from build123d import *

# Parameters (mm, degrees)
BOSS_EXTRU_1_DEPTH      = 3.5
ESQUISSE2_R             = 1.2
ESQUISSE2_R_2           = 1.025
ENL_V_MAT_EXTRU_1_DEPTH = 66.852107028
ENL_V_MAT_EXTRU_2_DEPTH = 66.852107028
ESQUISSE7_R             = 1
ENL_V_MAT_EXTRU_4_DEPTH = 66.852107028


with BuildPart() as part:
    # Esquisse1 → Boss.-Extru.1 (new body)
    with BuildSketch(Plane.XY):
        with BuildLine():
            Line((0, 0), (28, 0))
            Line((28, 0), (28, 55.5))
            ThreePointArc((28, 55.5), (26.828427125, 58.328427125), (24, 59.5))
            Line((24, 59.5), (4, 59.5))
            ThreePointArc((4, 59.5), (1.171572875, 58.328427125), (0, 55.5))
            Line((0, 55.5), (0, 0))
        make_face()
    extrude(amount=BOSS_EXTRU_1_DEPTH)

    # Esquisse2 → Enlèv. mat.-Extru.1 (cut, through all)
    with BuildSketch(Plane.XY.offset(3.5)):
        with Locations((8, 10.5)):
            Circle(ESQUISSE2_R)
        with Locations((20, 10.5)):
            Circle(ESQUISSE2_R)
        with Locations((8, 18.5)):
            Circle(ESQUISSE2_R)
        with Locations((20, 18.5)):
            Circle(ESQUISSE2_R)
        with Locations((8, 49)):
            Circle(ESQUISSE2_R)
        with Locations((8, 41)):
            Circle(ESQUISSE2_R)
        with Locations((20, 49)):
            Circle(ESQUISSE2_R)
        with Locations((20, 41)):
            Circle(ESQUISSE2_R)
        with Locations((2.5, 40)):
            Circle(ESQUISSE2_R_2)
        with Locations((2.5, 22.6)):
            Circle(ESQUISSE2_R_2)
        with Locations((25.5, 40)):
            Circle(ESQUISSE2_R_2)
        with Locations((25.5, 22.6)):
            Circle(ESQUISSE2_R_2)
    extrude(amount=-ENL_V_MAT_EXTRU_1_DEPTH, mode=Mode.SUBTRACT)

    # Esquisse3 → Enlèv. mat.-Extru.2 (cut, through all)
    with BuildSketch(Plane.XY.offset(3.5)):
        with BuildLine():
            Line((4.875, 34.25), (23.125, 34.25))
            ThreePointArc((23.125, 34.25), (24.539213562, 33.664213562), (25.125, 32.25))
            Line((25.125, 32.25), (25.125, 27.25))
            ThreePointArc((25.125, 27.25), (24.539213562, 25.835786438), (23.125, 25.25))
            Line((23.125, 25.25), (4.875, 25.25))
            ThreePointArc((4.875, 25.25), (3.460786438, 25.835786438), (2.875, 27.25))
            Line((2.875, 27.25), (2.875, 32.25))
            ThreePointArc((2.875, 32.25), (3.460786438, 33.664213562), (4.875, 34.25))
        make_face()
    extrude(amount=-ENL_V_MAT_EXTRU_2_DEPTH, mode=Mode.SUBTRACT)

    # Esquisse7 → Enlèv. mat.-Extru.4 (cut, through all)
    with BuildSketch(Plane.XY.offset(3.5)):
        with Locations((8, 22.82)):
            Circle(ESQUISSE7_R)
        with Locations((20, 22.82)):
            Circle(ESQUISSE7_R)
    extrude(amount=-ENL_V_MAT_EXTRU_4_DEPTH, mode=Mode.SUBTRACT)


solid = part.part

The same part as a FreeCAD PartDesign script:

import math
import FreeCAD as App
import Part
import Sketcher

doc = App.newDocument("Part")
params = doc.addObject("Spreadsheet::Sheet", "Params")
for row, (alias, value) in enumerate([
    ("sketch1_radius", "4 mm"),
    ("sketch1_width", "28 mm"),
    ("sketch1_height", "55.5 mm"),
    ("pad1_length", "3.5 mm"),
    ("sketch2_diameter", "2.4 mm"),
    ("sketch2_diameter2", "2.05 mm"),
    ("sketch3_radius", "2 mm"),
    ("sketch3_height", "5 mm"),
    ("sketch3_width", "18.25 mm"),
    ("sketch4_diameter", "2 mm"),
], start=1):
    params.set(f"A{row}", alias)
    params.set(f"B{row}", "=" + value)
    params.setAlias(f"B{row}", alias)

body = doc.addObject("PartDesign::Body", "Body")

sketch1 = body.newObject("Sketcher::SketchObject", "Sketch")
sketch1.AttachmentSupport = (doc.getObject("XY_Plane"), [""])
sketch1.MapMode = "FlatFace"
sketch1.addGeometry(Part.LineSegment(App.Vector(0, 0, 0), App.Vector(28, 0, 0)), False)
sketch1.addGeometry(Part.LineSegment(App.Vector(28, 0, 0), App.Vector(28, 55.5, 0)), False)
sketch1.addGeometry(Part.ArcOfCircle(Part.Circle(App.Vector(24, 55.5, 0), App.Vector(0, 0, 1), 4), math.radians(0), math.radians(90)), False)
sketch1.addGeometry(Part.LineSegment(App.Vector(24, 59.5, 0), App.Vector(4, 59.5, 0)), False)
sketch1.addGeometry(Part.ArcOfCircle(Part.Circle(App.Vector(4, 55.5, 0), App.Vector(0, 0, 1), 4), math.radians(90), math.radians(180)), False)
sketch1.addGeometry(Part.LineSegment(App.Vector(0, 55.5, 0), App.Vector(0, 0, 0)), False)
sketch1.addConstraint(Sketcher.Constraint("Coincident", 0, 2, 1, 1))
sketch1.addConstraint(Sketcher.Constraint("Tangent", 1, 2, 2, 1))
sketch1.addConstraint(Sketcher.Constraint("Tangent", 2, 2, 3, 1))
sketch1.addConstraint(Sketcher.Constraint("Tangent", 3, 2, 4, 1))
sketch1.addConstraint(Sketcher.Constraint("Tangent", 4, 2, 5, 1))
sketch1.addConstraint(Sketcher.Constraint("Coincident", 5, 2, 0, 1))
sketch1.addConstraint(Sketcher.Constraint("Horizontal", 0))
sketch1.addConstraint(Sketcher.Constraint("Vertical", 1))
sketch1.addConstraint(Sketcher.Constraint("Horizontal", 3))
sketch1.addConstraint(Sketcher.Constraint("Vertical", 5))
sketch1.addConstraint(Sketcher.Constraint("Coincident", 5, 2, -1, 1))
sketch1.addConstraint(Sketcher.Constraint("Equal", 2, 4))
sketch1.addConstraint(Sketcher.Constraint("Radius", 2, 4.0))
sketch1.addConstraint(Sketcher.Constraint("DistanceX", 0, 1, 0, 2, 28.0))
sketch1.addConstraint(Sketcher.Constraint("DistanceY", 1, 1, 1, 2, 55.5))
sketch1.setExpression("Constraints[12]", "Params.sketch1_radius")
sketch1.setExpression("Constraints[13]", "Params.sketch1_width")
sketch1.setExpression("Constraints[14]", "Params.sketch1_height")
pad1 = body.newObject("PartDesign::Pad", "Pad")
pad1.Profile = sketch1
pad1.setExpression("Length", "Params.pad1_length")

sketch2 = body.newObject("Sketcher::SketchObject", "Sketch001")
sketch2.AttachmentSupport = (doc.getObject("XY_Plane"), [""])
sketch2.MapMode = "FlatFace"
sketch2.AttachmentOffset = App.Placement(App.Vector(0, 0, 3.5), App.Rotation())
sketch2.addGeometry(Part.Circle(App.Vector(8, 10.5, 0), App.Vector(0, 0, 1), 1.2), False)
sketch2.addGeometry(Part.Circle(App.Vector(20, 10.5, 0), App.Vector(0, 0, 1), 1.2), False)
sketch2.addGeometry(Part.Circle(App.Vector(8, 18.5, 0), App.Vector(0, 0, 1), 1.2), False)
sketch2.addGeometry(Part.Circle(App.Vector(20, 18.5, 0), App.Vector(0, 0, 1), 1.2), False)
sketch2.addGeometry(Part.Circle(App.Vector(8, 49, 0), App.Vector(0, 0, 1), 1.2), False)
sketch2.addGeometry(Part.Circle(App.Vector(8, 41, 0), App.Vector(0, 0, 1), 1.2), False)
sketch2.addGeometry(Part.Circle(App.Vector(20, 49, 0), App.Vector(0, 0, 1), 1.2), False)
sketch2.addGeometry(Part.Circle(App.Vector(20, 41, 0), App.Vector(0, 0, 1), 1.2), False)
sketch2.addGeometry(Part.Circle(App.Vector(2.5, 40, 0), App.Vector(0, 0, 1), 1), False)
sketch2.addGeometry(Part.Circle(App.Vector(2.5, 22.6, 0), App.Vector(0, 0, 1), 1), False)
sketch2.addGeometry(Part.Circle(App.Vector(25.5, 40, 0), App.Vector(0, 0, 1), 1), False)
sketch2.addGeometry(Part.Circle(App.Vector(25.5, 22.6, 0), App.Vector(0, 0, 1), 1), False)
sketch2.addConstraint(Sketcher.Constraint("Equal", 0, 1))
sketch2.addConstraint(Sketcher.Constraint("Equal", 1, 2))
sketch2.addConstraint(Sketcher.Constraint("Equal", 2, 3))
sketch2.addConstraint(Sketcher.Constraint("Equal", 3, 4))
sketch2.addConstraint(Sketcher.Constraint("Equal", 4, 5))
sketch2.addConstraint(Sketcher.Constraint("Equal", 5, 6))
sketch2.addConstraint(Sketcher.Constraint("Equal", 6, 7))
sketch2.addConstraint(Sketcher.Constraint("Equal", 8, 9))
sketch2.addConstraint(Sketcher.Constraint("Equal", 9, 10))
sketch2.addConstraint(Sketcher.Constraint("Equal", 10, 11))
sketch2.addConstraint(Sketcher.Constraint("Horizontal", 0, 3, 1, 3))
sketch2.addConstraint(Sketcher.Constraint("Horizontal", 2, 3, 3, 3))
sketch2.addConstraint(Sketcher.Constraint("Horizontal", 4, 3, 6, 3))
sketch2.addConstraint(Sketcher.Constraint("Horizontal", 5, 3, 7, 3))
sketch2.addConstraint(Sketcher.Constraint("Horizontal", 8, 3, 10, 3))
sketch2.addConstraint(Sketcher.Constraint("Horizontal", 9, 3, 11, 3))
sketch2.addConstraint(Sketcher.Constraint("Vertical", 0, 3, 2, 3))
sketch2.addConstraint(Sketcher.Constraint("Vertical", 1, 3, 3, 3))
sketch2.addConstraint(Sketcher.Constraint("Vertical", 2, 3, 4, 3))
sketch2.addConstraint(Sketcher.Constraint("Vertical", 4, 3, 5, 3))
sketch2.addConstraint(Sketcher.Constraint("Vertical", 3, 3, 6, 3))
sketch2.addConstraint(Sketcher.Constraint("Vertical", 6, 3, 7, 3))
sketch2.addConstraint(Sketcher.Constraint("Vertical", 8, 3, 9, 3))
sketch2.addConstraint(Sketcher.Constraint("Vertical", 10, 3, 11, 3))
sketch2.addConstraint(Sketcher.Constraint("Diameter", 0, 2.4))
sketch2.addConstraint(Sketcher.Constraint("Diameter", 8, 2.05))
sketch2.addConstraint(Sketcher.Constraint("DistanceX", -1, 1, 0, 3, 8.0))
sketch2.addConstraint(Sketcher.Constraint("DistanceX", -1, 1, 1, 3, 20.0))
sketch2.addConstraint(Sketcher.Constraint("DistanceY", -1, 1, 4, 3, 49.0))
sketch2.addConstraint(Sketcher.Constraint("DistanceY", -1, 1, 5, 3, 41.0))
sketch2.addConstraint(Sketcher.Constraint("DistanceY", -1, 1, 8, 3, 40.0))
sketch2.addConstraint(Sketcher.Constraint("DistanceY", 0, 3, 2, 3, 8.0))
sketch2.addConstraint(Sketcher.Constraint("DistanceY", -1, 1, 0, 3, 10.5))
sketch2.addConstraint(Sketcher.Constraint("DistanceX", -1, 1, 8, 3, 2.5))
sketch2.addConstraint(Sketcher.Constraint("DistanceY", -1, 1, 9, 3, 22.6))
sketch2.addConstraint(Sketcher.Constraint("DistanceX", -1, 1, 10, 3, 25.5))
sketch2.setExpression("Constraints[24]", "Params.sketch2_diameter")
sketch2.setExpression("Constraints[25]", "Params.sketch2_diameter2")
pocket1 = body.newObject("PartDesign::Pocket", "Pocket")
pocket1.Profile = sketch2
pocket1.Type = "ThroughAll"

sketch3 = body.newObject("Sketcher::SketchObject", "Sketch002")
sketch3.AttachmentSupport = (doc.getObject("XY_Plane"), [""])
sketch3.MapMode = "FlatFace"
sketch3.AttachmentOffset = App.Placement(App.Vector(0, 0, 3.5), App.Rotation())
sketch3.addGeometry(Part.LineSegment(App.Vector(23.1, 34.2, 0), App.Vector(4.9, 34.2, 0)), False)
sketch3.addGeometry(Part.ArcOfCircle(Part.Circle(App.Vector(4.9, 32.2, 0), App.Vector(0, 0, 1), 2), math.radians(90), math.radians(180)), False)
sketch3.addGeometry(Part.LineSegment(App.Vector(2.9, 32.2, 0), App.Vector(2.9, 27.2, 0)), False)
sketch3.addGeometry(Part.ArcOfCircle(Part.Circle(App.Vector(4.9, 27.3, 0), App.Vector(0, 0, 1), 2), math.radians(-180), math.radians(-90)), False)
sketch3.addGeometry(Part.LineSegment(App.Vector(4.9, 25.2, 0), App.Vector(23.1, 25.2, 0)), False)
sketch3.addGeometry(Part.ArcOfCircle(Part.Circle(App.Vector(23.1, 27.3, 0), App.Vector(0, 0, 1), 2), math.radians(-90), math.radians(0)), False)
sketch3.addGeometry(Part.LineSegment(App.Vector(25.1, 27.2, 0), App.Vector(25.1, 32.2, 0)), False)
sketch3.addGeometry(Part.ArcOfCircle(Part.Circle(App.Vector(23.1, 32.2, 0), App.Vector(0, 0, 1), 2), math.radians(0), math.radians(90)), False)
sketch3.addConstraint(Sketcher.Constraint("Tangent", 0, 2, 1, 1))
sketch3.addConstraint(Sketcher.Constraint("Tangent", 1, 2, 2, 1))
sketch3.addConstraint(Sketcher.Constraint("Tangent", 2, 2, 3, 1))
sketch3.addConstraint(Sketcher.Constraint("Tangent", 3, 2, 4, 1))
sketch3.addConstraint(Sketcher.Constraint("Tangent", 4, 2, 5, 1))
sketch3.addConstraint(Sketcher.Constraint("Tangent", 5, 2, 6, 1))
sketch3.addConstraint(Sketcher.Constraint("Tangent", 6, 2, 7, 1))
sketch3.addConstraint(Sketcher.Constraint("Tangent", 7, 2, 0, 1))
sketch3.addConstraint(Sketcher.Constraint("Horizontal", 0))
sketch3.addConstraint(Sketcher.Constraint("Vertical", 2))
sketch3.addConstraint(Sketcher.Constraint("Horizontal", 4))
sketch3.addConstraint(Sketcher.Constraint("Vertical", 6))
sketch3.addConstraint(Sketcher.Constraint("Equal", 1, 3))
sketch3.addConstraint(Sketcher.Constraint("Equal", 3, 5))
sketch3.addConstraint(Sketcher.Constraint("Equal", 5, 7))
sketch3.addConstraint(Sketcher.Constraint("Radius", 1, 2.0))
sketch3.addConstraint(Sketcher.Constraint("DistanceY", 2, 2, 2, 1, 5.0))
sketch3.addConstraint(Sketcher.Constraint("DistanceX", 0, 2, 0, 1, 18.25))
sketch3.addConstraint(Sketcher.Constraint("DistanceY", -1, 1, 1, 3, 32.25))
sketch3.addConstraint(Sketcher.Constraint("DistanceX", -1, 1, 1, 3, 4.875))
sketch3.setExpression("Constraints[15]", "Params.sketch3_radius")
sketch3.setExpression("Constraints[16]", "Params.sketch3_height")
sketch3.setExpression("Constraints[17]", "Params.sketch3_width")
pocket2 = body.newObject("PartDesign::Pocket", "Pocket001")
pocket2.Profile = sketch3
pocket2.Type = "ThroughAll"

sketch4 = body.newObject("Sketcher::SketchObject", "Sketch003")
sketch4.AttachmentSupport = (doc.getObject("XY_Plane"), [""])
sketch4.MapMode = "FlatFace"
sketch4.AttachmentOffset = App.Placement(App.Vector(0, 0, 3.5), App.Rotation())
sketch4.addGeometry(Part.Circle(App.Vector(8, 22.8, 0), App.Vector(0, 0, 1), 1), False)
sketch4.addGeometry(Part.Circle(App.Vector(20, 22.8, 0), App.Vector(0, 0, 1), 1), False)
sketch4.addConstraint(Sketcher.Constraint("Equal", 0, 1))
sketch4.addConstraint(Sketcher.Constraint("Horizontal", 0, 3, 1, 3))
sketch4.addConstraint(Sketcher.Constraint("Diameter", 0, 2.0))
sketch4.addConstraint(Sketcher.Constraint("DistanceX", -1, 1, 0, 3, 8.0))
sketch4.addConstraint(Sketcher.Constraint("DistanceX", -1, 1, 1, 3, 20.0))
sketch4.addConstraint(Sketcher.Constraint("DistanceY", -1, 1, 0, 3, 22.82))
sketch4.setExpression("Constraints[2]", "Params.sketch4_diameter")
pocket3 = body.newObject("PartDesign::Pocket", "Pocket002")
pocket3.Profile = sketch4
pocket3.Type = "ThroughAll"

doc.recompute()
